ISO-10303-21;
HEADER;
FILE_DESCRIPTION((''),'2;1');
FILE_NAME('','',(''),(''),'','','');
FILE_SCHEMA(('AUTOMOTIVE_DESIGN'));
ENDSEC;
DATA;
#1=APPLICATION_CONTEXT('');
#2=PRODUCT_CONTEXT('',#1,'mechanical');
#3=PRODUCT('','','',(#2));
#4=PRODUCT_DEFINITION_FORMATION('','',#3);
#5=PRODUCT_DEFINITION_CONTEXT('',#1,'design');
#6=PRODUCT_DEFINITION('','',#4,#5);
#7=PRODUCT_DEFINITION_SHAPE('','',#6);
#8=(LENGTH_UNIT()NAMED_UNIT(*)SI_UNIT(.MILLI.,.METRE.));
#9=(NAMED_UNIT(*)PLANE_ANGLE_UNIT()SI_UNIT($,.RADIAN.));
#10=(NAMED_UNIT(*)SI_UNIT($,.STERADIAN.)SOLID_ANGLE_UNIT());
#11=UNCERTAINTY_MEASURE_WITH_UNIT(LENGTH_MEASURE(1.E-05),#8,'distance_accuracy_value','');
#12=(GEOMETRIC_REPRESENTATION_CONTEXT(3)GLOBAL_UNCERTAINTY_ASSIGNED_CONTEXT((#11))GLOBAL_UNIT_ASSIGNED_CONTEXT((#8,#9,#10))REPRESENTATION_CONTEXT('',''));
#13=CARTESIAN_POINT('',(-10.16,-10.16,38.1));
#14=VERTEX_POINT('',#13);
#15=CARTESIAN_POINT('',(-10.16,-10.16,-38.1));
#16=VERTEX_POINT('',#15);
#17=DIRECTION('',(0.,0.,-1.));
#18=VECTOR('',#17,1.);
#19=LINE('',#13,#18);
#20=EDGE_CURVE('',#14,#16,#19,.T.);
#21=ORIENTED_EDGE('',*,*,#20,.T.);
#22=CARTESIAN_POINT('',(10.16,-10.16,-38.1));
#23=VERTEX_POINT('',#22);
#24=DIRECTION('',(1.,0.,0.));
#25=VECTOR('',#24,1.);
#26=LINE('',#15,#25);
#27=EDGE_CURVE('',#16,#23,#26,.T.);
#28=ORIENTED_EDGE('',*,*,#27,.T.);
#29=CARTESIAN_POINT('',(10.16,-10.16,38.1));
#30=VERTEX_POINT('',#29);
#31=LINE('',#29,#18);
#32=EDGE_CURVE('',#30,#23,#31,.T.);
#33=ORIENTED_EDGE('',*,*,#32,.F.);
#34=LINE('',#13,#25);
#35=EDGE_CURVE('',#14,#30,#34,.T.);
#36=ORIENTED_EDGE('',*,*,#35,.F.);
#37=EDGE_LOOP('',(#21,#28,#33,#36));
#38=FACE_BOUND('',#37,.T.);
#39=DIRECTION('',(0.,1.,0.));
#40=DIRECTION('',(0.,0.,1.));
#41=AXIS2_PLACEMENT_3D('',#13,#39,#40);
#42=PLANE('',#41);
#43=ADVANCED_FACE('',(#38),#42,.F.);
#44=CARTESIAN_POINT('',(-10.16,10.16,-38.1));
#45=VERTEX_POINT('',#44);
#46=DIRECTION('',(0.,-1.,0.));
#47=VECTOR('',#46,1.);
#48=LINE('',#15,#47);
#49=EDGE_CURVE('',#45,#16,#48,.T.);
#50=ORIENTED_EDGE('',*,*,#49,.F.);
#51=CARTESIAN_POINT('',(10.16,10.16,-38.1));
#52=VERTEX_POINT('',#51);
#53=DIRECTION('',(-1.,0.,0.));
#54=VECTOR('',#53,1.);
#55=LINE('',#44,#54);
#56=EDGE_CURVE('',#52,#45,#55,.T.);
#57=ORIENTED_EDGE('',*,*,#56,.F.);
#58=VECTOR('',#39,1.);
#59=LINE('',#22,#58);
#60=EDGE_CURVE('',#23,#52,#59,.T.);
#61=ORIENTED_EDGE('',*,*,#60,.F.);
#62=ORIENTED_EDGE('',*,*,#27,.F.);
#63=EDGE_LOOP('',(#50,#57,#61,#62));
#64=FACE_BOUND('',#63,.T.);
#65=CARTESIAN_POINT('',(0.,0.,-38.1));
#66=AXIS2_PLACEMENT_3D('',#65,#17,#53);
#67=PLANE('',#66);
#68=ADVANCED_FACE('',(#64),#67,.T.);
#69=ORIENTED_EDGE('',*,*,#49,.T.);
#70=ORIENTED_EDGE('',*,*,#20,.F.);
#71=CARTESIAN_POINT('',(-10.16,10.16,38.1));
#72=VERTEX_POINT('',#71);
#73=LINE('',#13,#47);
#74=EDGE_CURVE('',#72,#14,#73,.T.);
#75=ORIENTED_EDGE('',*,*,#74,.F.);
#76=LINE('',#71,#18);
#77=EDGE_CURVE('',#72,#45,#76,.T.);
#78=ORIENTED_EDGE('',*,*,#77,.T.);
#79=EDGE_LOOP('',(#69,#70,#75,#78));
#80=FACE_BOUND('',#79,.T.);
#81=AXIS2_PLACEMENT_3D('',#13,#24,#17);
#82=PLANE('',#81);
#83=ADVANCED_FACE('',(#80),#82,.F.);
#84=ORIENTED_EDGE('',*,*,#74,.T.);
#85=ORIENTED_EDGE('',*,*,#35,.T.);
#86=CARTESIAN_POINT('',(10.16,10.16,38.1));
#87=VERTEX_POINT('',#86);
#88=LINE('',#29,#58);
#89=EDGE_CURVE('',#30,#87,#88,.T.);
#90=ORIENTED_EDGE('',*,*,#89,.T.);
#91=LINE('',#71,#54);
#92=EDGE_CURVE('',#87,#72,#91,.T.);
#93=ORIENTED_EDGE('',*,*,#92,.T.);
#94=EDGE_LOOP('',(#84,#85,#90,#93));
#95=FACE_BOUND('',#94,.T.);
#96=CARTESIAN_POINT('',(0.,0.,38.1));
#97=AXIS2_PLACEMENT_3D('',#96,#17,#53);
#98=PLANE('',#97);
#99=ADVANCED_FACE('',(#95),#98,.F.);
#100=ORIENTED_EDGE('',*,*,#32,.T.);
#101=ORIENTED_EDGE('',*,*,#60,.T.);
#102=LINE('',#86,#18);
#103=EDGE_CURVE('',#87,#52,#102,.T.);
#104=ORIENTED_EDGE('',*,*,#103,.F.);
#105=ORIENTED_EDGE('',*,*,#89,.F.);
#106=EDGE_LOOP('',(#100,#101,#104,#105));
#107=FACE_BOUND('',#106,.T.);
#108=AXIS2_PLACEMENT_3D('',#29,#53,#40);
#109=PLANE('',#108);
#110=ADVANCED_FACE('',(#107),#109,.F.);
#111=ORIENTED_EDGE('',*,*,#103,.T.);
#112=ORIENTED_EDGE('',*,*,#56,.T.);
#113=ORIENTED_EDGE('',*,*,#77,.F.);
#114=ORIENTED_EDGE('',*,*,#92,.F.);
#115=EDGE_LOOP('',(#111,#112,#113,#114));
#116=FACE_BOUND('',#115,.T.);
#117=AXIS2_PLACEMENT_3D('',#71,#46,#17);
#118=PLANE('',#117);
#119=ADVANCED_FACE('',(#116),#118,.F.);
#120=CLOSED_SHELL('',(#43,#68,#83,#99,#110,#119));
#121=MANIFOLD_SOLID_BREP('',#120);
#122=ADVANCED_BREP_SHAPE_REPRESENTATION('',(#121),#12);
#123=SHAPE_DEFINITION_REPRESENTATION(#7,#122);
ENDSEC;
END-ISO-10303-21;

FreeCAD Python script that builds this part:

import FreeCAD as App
import Part
import Sketcher
from FreeCAD import Vector
Q = App.Units.Quantity

doc = App.newDocument("Part")
body = doc.addObject("PartDesign::Body", "Body")

# Sketch on XY plane
sketch1 = body.newObject("Sketcher::SketchObject", "Sketch")
sketch1.AttachmentSupport = (doc.getObject("XY_Plane"), [""])
sketch1.MapMode = "FlatFace"
sketch1.addGeometry(Part.LineSegment(Vector(-10, 10, 0), Vector(-10, -10, 0)), False)
sketch1.addGeometry(Part.LineSegment(Vector(-10, -10, 0), Vector(10, -10, 0)), False)
sketch1.addGeometry(Part.LineSegment(Vector(10, -10, 0), Vector(10, 10, 0)), False)
sketch1.addGeometry(Part.LineSegment(Vector(10, 10, 0), Vector(-10, 10, 0)), False)
sketch1.addConstraint(Sketcher.Constraint("Coincident", 0, 2, 1, 1))
sketch1.addConstraint(Sketcher.Constraint("Coincident", 1, 2, 2, 1))
sketch1.addConstraint(Sketcher.Constraint("Coincident", 2, 2, 3, 1))
sketch1.addConstraint(Sketcher.Constraint("Coincident", 3, 2, 0, 1))
sketch1.addConstraint(Sketcher.Constraint("Vertical", 0))
sketch1.addConstraint(Sketcher.Constraint("Horizontal", 1))
sketch1.addConstraint(Sketcher.Constraint("Vertical", 2))
sketch1.addConstraint(Sketcher.Constraint("Horizontal", 3))
sketch1.addConstraint(Sketcher.Constraint("Symmetric", 0, 2, 2, 2, -1, 1))
sketch1.addConstraint(Sketcher.Constraint("Equal", 3, 0))
sketch1.addConstraint(Sketcher.Constraint("DistanceX", 1, 1, 1, 2, Q("0.8 in")))
pad1 = body.newObject("PartDesign::Pad", "Pad")
pad1.Profile = sketch1
pad1.Length = Q("3 in")
pad1.Midplane = True

doc.recompute()
